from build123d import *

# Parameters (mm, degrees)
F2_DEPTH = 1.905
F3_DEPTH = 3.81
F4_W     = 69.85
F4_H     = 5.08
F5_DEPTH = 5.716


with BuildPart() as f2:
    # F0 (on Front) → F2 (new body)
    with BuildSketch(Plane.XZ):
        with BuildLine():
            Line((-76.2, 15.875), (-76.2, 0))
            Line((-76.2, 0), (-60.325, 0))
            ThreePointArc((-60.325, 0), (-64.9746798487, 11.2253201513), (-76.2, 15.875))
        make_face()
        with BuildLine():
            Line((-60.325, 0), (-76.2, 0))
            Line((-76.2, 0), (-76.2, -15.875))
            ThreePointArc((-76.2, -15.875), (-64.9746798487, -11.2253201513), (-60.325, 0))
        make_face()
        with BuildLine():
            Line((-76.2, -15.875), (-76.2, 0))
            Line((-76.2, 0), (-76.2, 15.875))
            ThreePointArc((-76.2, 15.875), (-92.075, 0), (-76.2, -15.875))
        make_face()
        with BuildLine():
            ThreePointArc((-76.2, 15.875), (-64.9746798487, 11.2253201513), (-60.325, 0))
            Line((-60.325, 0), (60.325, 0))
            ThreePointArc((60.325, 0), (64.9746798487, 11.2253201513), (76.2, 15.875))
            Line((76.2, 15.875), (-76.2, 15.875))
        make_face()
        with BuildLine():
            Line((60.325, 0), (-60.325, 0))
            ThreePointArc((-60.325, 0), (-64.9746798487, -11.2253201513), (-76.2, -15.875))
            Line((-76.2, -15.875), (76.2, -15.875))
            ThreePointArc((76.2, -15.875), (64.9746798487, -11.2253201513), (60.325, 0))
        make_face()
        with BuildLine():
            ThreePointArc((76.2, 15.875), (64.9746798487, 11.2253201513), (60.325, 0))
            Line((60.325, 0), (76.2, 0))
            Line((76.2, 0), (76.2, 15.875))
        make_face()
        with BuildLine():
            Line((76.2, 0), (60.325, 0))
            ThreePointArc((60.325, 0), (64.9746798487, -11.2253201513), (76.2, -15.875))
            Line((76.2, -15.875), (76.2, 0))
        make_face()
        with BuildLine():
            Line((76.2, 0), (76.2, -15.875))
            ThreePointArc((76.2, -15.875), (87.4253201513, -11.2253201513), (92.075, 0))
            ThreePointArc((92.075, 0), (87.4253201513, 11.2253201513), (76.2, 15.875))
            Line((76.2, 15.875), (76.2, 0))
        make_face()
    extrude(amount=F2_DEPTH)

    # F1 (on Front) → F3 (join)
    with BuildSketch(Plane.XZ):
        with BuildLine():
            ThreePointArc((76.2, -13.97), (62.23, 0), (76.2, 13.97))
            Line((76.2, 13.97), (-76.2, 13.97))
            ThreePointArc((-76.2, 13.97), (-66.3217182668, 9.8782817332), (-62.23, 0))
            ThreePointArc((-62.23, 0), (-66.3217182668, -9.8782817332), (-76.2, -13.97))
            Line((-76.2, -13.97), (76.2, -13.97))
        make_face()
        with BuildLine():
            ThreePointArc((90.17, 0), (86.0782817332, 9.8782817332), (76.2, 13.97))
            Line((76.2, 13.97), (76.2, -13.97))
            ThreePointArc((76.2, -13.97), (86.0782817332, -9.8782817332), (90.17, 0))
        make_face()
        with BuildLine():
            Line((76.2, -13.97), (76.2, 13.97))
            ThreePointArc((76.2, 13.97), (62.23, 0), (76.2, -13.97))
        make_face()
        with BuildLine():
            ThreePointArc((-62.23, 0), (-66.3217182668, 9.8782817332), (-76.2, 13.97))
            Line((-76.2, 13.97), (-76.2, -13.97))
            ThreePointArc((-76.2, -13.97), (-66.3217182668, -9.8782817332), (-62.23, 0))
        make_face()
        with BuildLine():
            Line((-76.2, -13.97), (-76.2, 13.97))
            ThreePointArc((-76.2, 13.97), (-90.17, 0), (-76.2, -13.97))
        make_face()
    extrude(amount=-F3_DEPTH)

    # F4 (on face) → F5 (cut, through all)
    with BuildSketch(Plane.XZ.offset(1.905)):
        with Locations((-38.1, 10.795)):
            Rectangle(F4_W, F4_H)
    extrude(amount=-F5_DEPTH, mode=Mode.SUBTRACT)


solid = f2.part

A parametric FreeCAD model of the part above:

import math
import FreeCAD as App
import Part
import Sketcher
from FreeCAD import Vector
Q = App.Units.Quantity

doc = App.newDocument("Part")
params = doc.addObject("Spreadsheet::Sheet", "Params")
for row, (alias, value) in enumerate([
    ("sketch1_width", "6 in"),
    ("sketch1_radius", "0.625 in"),
    ("pad1_length", "0.075 in"),
    ("sketch2_width", "6 in"),
    ("sketch2_radius", "0.55 in"),
    ("pad2_length", "0.15 in"),
    ("sketch3_height", "0.2 in"),
    ("sketch3_width", "2.75 in"),
], start=1):
    params.set(f"A{row}", alias)
    params.set(f"B{row}", "=" + value)
    params.setAlias(f"B{row}", alias)

body = doc.addObject("PartDesign::Body", "Body")

# Sketch on XZ plane
sketch1 = body.newObject("Sketcher::SketchObject", "Sketch")
sketch1.AttachmentSupport = (doc.getObject("XZ_Plane"), [""])
sketch1.MapMode = "FlatFace"
sketch1.addGeometry(Part.LineSegment(Vector(76, 16, 0), Vector(-76, 16, 0)), False)
sketch1.addGeometry(Part.ArcOfCircle(Part.Circle(Vector(-76, 0, 0), Vector(0, 0, 1), 16), math.radians(90), math.radians(270)), False)
sketch1.addGeometry(Part.LineSegment(Vector(-76, -16, 0), Vector(76, -16, 0)), False)
sketch1.addGeometry(Part.ArcOfCircle(Part.Circle(Vector(76, 0, 0), Vector(0, 0, 1), 16), math.radians(-90), math.radians(0)), False)
sketch1.addGeometry(Part.ArcOfCircle(Part.Circle(Vector(76, 0, 0), Vector(0, 0, 1), 16), math.radians(0), math.radians(90)), False)
sketch1.addConstraint(Sketcher.Constraint("Tangent", 0, 2, 1, 1))
sketch1.addConstraint(Sketcher.Constraint("Tangent", 1, 2, 2, 1))
sketch1.addConstraint(Sketcher.Constraint("Tangent", 2, 2, 3, 1))
sketch1.addConstraint(Sketcher.Constraint("Tangent", 3, 2, 4, 1))
sketch1.addConstraint(Sketcher.Constraint("Tangent", 4, 2, 0, 1))
sketch1.addConstraint(Sketcher.Constraint("Horizontal", 0))
sketch1.addConstraint(Sketcher.Constraint("Horizontal", 2))
sketch1.addConstraint(Sketcher.Constraint("Equal", 1, 3))
sketch1.addConstraint(Sketcher.Constraint("Symmetric", 1, 3, 3, 3, -1, 1))
sketch1.addConstraint(Sketcher.Constraint("PointOnObject", 3, 2, -1))
sketch1.addConstraint(Sketcher.Constraint("DistanceX", 0, 2, 0, 1, Q("6 in")))
sketch1.addConstraint(Sketcher.Constraint("Radius", 1, Q("0.625 in")))
sketch1.setExpression("Constraints[10]", "Params.sketch1_width")
sketch1.setExpression("Constraints[11]", "Params.sketch1_radius")
pad1 = body.newObject("PartDesign::Pad", "Pad")
pad1.Profile = sketch1
pad1.setExpression("Length", "Params.pad1_length")

# Sketch on XZ plane
sketch2 = body.newObject("Sketcher::SketchObject", "Sketch001")
sketch2.AttachmentSupport = (doc.getObject("XZ_Plane"), [""])
sketch2.MapMode = "FlatFace"
sketch2.addGeometry(Part.LineSegment(Vector(76, 14, 0), Vector(-76, 14, 0)), False)
sketch2.addGeometry(Part.ArcOfCircle(Part.Circle(Vector(-76, 0, 0), Vector(0, 0, 1), 14), math.radians(90), math.radians(270)), False)
sketch2.addGeometry(Part.LineSegment(Vector(-76, -14, 0), Vector(76, -14, 0)), False)
sketch2.addGeometry(Part.ArcOfCircle(Part.Circle(Vector(76, 0, 0), Vector(0, 0, 1), 14), math.radians(-90), math.radians(0)), False)
sketch2.addGeometry(Part.ArcOfCircle(Part.Circle(Vector(76, 0, 0), Vector(0, 0, 1), 14), math.radians(0), math.radians(90)), False)
sketch2.addConstraint(Sketcher.Constraint("Tangent", 0, 2, 1, 1))
sketch2.addConstraint(Sketcher.Constraint("Tangent", 1, 2, 2, 1))
sketch2.addConstraint(Sketcher.Constraint("Tangent", 2, 2, 3, 1))
sketch2.addConstraint(Sketcher.Constraint("Tangent", 3, 2, 4, 1))
sketch2.addConstraint(Sketcher.Constraint("Tangent", 4, 2, 0, 1))
sketch2.addConstraint(Sketcher.Constraint("Horizontal", 0))
sketch2.addConstraint(Sketcher.Constraint("Horizontal", 2))
sketch2.addConstraint(Sketcher.Constraint("Equal", 1, 3))
sketch2.addConstraint(Sketcher.Constraint("Symmetric", 1, 3, 3, 3, -1, 1))
sketch2.addConstraint(Sketcher.Constraint("PointOnObject", 3, 2, -1))
sketch2.addConstraint(Sketcher.Constraint("DistanceX", 0, 2, 0, 1, Q("6 in")))
sketch2.addConstraint(Sketcher.Constraint("Radius", 1, Q("0.55 in")))
sketch2.setExpression("Constraints[10]", "Params.sketch2_width")
sketch2.setExpression("Constraints[11]", "Params.sketch2_radius")
pad2 = body.newObject("PartDesign::Pad", "Pad001")
pad2.Profile = sketch2
pad2.setExpression("Length", "Params.pad2_length")
pad2.Reversed = True

# Sketch on XZ plane
sketch3 = body.newObject("Sketcher::SketchObject", "Sketch002")
sketch3.AttachmentSupport = (doc.getObject("XZ_Plane"), [""])
sketch3.MapMode = "FlatFace"
sketch3.AttachmentOffset = App.Placement(Vector(0, 0, 0.075 * 25.4), App.Rotation())
sketch3.addGeometry(Part.LineSegment(Vector(-73, 13, 0), Vector(-73, 8, 0)), False)
sketch3.addGeometry(Part.LineSegment(Vector(-73, 8, 0), Vector(-3, 8, 0)), False)
sketch3.addGeometry(Part.LineSegment(Vector(-3, 8, 0), Vector(-3, 13, 0)), False)
sketch3.addGeometry(Part.LineSegment(Vector(-3, 13, 0), Vector(-73, 13, 0)), False)
sketch3.addConstraint(Sketcher.Constraint("Coincident", 0, 2, 1, 1))
sketch3.addConstraint(Sketcher.Constraint("Coincident", 1, 2, 2, 1))
sketch3.addConstraint(Sketcher.Constraint("Coincident", 2, 2, 3, 1))
sketch3.addConstraint(Sketcher.Constraint("Coincident", 3, 2, 0, 1))
sketch3.addConstraint(Sketcher.Constraint("Vertical", 0))
sketch3.addConstraint(Sketcher.Constraint("Horizontal", 1))
sketch3.addConstraint(Sketcher.Constraint("Vertical", 2))
sketch3.addConstraint(Sketcher.Constraint("Horizontal", 3))
sketch3.addConstraint(Sketcher.Constraint("DistanceY", 0, 2, 0, 1, Q("0.2 in")))
sketch3.addConstraint(Sketcher.Constraint("DistanceX", 1, 1, 1, 2, Q("2.75 in")))
sketch3.addConstraint(Sketcher.Constraint("DistanceX", 0, 2, -1, 1, Q("2.875 in")))
sketch3.addConstraint(Sketcher.Constraint("DistanceY", -1, 1, 0, 2, Q("0.325 in")))
sketch3.setExpression("Constraints[8]", "Params.sketch3_height")
sketch3.setExpression("Constraints[9]", "Params.sketch3_width")
pocket1 = body.newObject("PartDesign::Pocket", "Pocket")
pocket1.Profile = sketch3
pocket1.Type = "ThroughAll"

doc.recompute()
